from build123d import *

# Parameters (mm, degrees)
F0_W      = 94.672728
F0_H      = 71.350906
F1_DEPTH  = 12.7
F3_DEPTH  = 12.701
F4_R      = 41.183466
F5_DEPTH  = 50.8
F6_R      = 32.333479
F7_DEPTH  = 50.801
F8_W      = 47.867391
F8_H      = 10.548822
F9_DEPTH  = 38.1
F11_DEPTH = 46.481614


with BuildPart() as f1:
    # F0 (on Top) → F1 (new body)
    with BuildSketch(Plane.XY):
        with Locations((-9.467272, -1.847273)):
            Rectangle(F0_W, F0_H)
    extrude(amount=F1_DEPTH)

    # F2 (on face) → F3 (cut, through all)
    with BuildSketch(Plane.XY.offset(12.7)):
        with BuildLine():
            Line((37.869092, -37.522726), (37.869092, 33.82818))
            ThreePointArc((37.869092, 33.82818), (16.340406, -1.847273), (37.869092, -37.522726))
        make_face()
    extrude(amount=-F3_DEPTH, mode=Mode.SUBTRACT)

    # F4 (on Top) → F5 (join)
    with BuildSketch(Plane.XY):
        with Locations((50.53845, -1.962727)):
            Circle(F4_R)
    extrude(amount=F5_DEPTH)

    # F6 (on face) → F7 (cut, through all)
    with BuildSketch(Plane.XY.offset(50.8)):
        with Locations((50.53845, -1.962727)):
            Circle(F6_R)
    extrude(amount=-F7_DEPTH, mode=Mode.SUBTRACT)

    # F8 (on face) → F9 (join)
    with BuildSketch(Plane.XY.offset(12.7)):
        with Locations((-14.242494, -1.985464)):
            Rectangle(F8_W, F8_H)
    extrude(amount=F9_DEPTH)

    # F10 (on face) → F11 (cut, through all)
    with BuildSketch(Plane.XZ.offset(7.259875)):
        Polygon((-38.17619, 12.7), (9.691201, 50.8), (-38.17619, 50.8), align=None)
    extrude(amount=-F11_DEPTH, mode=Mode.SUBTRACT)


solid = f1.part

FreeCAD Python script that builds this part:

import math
import FreeCAD as App
import Part
import Sketcher
from FreeCAD import Vector
Q = App.Units.Quantity

doc = App.newDocument("Part")
body = doc.addObject("PartDesign::Body", "Body")

sketch1 = doc.addObject("Sketcher::SketchObject", "Sketch")
body.addObject(sketch1)
sketch1.AttachmentSupport = (doc.XY_Plane, [""])
sketch1.MapMode = "FlatFace"
sketch1.addGeometry([
    Part.LineSegment(Vector(-57, 34, 0), Vector(-57, -38, 0)),
    Part.LineSegment(Vector(-57, -38, 0), Vector(38, -38, 0)),
    Part.LineSegment(Vector(38, -38, 0), Vector(38, 34, 0)),
    Part.LineSegment(Vector(38, 34, 0), Vector(-57, 34, 0)),
], False)
sketch1.addConstraint([
    Sketcher.Constraint("Coincident", 0, 2, 1, 1),
    Sketcher.Constraint("Coincident", 1, 2, 2, 1),
    Sketcher.Constraint("Coincident", 2, 2, 3, 1),
    Sketcher.Constraint("Coincident", 3, 2, 0, 1),
    Sketcher.Constraint("Vertical", 0),
    Sketcher.Constraint("Horizontal", 1),
    Sketcher.Constraint("Vertical", 2),
    Sketcher.Constraint("Horizontal", 3),
    Sketcher.Constraint("DistanceX", 1, 1, 1, 2, 94.672728),
    Sketcher.Constraint("DistanceY", 0, 2, 0, 1, 71.350906),
    Sketcher.Constraint("DistanceY", -1, 1, 2, 2, 33.82818),
    Sketcher.Constraint("DistanceX", 0, 2, -1, 1, 56.803636),
])
pad1 = doc.addObject("PartDesign::Pad", "Pad")
body.addObject(pad1)
pad1.Profile = sketch1
pad1.Length = Q("0.5 in")

sketch2 = doc.addObject("Sketcher::SketchObject", "Sketch001")
body.addObject(sketch2)
sketch2.AttachmentSupport = (doc.XY_Plane, [""])
sketch2.MapMode = "FlatFace"
sketch2.AttachmentOffset = App.Placement(Vector(0, 0, 0.5 * 25.4), App.Rotation())
sketch2.addGeometry([
    Part.LineSegment(Vector(38, -38, 0), Vector(38, 34, 0)),
    Part.ArcOfCircle(Part.Circle(Vector(57, -2, 0), Vector(0, 0, 1), 40), math.radians(118), math.radians(242)),
], False)
sketch2.addConstraint([
    Sketcher.Constraint("Coincident", 0, 1, 1, 2),
    Sketcher.Constraint("Coincident", 1, 1, 0, 2),
    Sketcher.Constraint("Vertical", 0),
    Sketcher.Constraint("Radius", 1, 40.323461),
    Sketcher.Constraint("DistanceY", 0, 1, 0, 2, 71.350906),
    Sketcher.Constraint("DistanceY", -1, 1, 1, 1, 33.82818),
    Sketcher.Constraint("DistanceX", -1, 1, 1, 3, 56.663867),
])
pocket1 = doc.addObject("PartDesign::Pocket", "Pocket")
body.addObject(pocket1)
pocket1.Profile = sketch2
pocket1.Type = "ThroughAll"

sketch3 = doc.addObject("Sketcher::SketchObject", "Sketch002")
body.addObject(sketch3)
sketch3.AttachmentSupport = (doc.XY_Plane, [""])
sketch3.MapMode = "FlatFace"
sketch3.addGeometry(Part.Circle(Vector(51, -2, 0), Vector(0, 0, 1), 41), False)
sketch3.addConstraint([
    Sketcher.Constraint("Diameter", 0, 82.366932),
    Sketcher.Constraint("DistanceX", -1, 1, 0, 3, 50.53845),
    Sketcher.Constraint("DistanceY", 0, 3, -1, 1, 1.962727),
])
pad2 = doc.addObject("PartDesign::Pad", "Pad001")
body.addObject(pad2)
pad2.Profile = sketch3
pad2.Length = Q("2 in")

sketch4 = doc.addObject("Sketcher::SketchObject", "Sketch003")
body.addObject(sketch4)
sketch4.AttachmentSupport = (doc.XY_Plane, [""])
sketch4.MapMode = "FlatFace"
sketch4.AttachmentOffset = App.Placement(Vector(0, 0, 2 * 25.4), App.Rotation())
sketch4.addGeometry(Part.Circle(Vector(51, -2, 0), Vector(0, 0, 1), 32), False)
sketch4.addConstraint([
    Sketcher.Constraint("Diameter", 0, 64.666958),
    Sketcher.Constraint("DistanceX", -1, 1, 0, 3, 50.53845),
    Sketcher.Constraint("DistanceY", 0, 3, -1, 1, 1.962727),
])
pocket2 = doc.addObject("PartDesign::Pocket", "Pocket001")
body.addObject(pocket2)
pocket2.Profile = sketch4
pocket2.Type = "ThroughAll"

sketch5 = doc.addObject("Sketcher::SketchObject", "Sketch004")
body.addObject(sketch5)
sketch5.AttachmentSupport = (doc.XY_Plane, [""])
sketch5.MapMode = "FlatFace"
sketch5.AttachmentOffset = App.Placement(Vector(0, 0, 0.5 * 25.4), App.Rotation())
sketch5.addGeometry([
    Part.LineSegment(Vector(-38, 3, 0), Vector(-38, -7, 0)),
    Part.LineSegment(Vector(-38, -7, 0), Vector(10, -7, 0)),
    Part.LineSegment(Vector(10, -7, 0), Vector(10, 3, 0)),
    Part.LineSegment(Vector(10, 3, 0), Vector(-38, 3, 0)),
], False)
sketch5.addConstraint([
    Sketcher.Constraint("Coincident", 0, 2, 1, 1),
    Sketcher.Constraint("Coincident", 1, 2, 2, 1),
    Sketcher.Constraint("Coincident", 2, 2, 3, 1),
    Sketcher.Constraint("Coincident", 3, 2, 0, 1),
    Sketcher.Constraint("Vertical", 0),
    Sketcher.Constraint("Horizontal", 1),
    Sketcher.Constraint("Vertical", 2),
    Sketcher.Constraint("Horizontal", 3),
    Sketcher.Constraint("DistanceX", 1, 1, 1, 2, 47.867391),
    Sketcher.Constraint("DistanceX", -1, 1, 1, 2, 9.691202),
    Sketcher.Constraint("DistanceY", 0, 2, 0, 1, 10.548822),
    Sketcher.Constraint("DistanceY", 0, 2, -1, 1, 7.259875),
])
pad3 = doc.addObject("PartDesign::Pad", "Pad002")
body.addObject(pad3)
pad3.Profile = sketch5
pad3.Length = Q("1.5 in")

sketch6 = doc.addObject("Sketcher::SketchObject", "Sketch005")
body.addObject(sketch6)
sketch6.AttachmentSupport = (doc.XZ_Plane, [""])
sketch6.MapMode = "FlatFace"
sketch6.AttachmentOffset = App.Placement(Vector(0, 0, 7.259875), App.Rotation())
sketch6.addGeometry([
    Part.LineSegment(Vector(-38, 13, 0), Vector(10, 51, 0)),
    Part.LineSegment(Vector(10, 51, 0), Vector(-38, 51, 0)),
    Part.LineSegment(Vector(-38, 51, 0), Vector(-38, 13, 0)),
], False)
sketch6.addConstraint([
    Sketcher.Constraint("Coincident", 0, 2, 1, 1),
    Sketcher.Constraint("Coincident", 1, 2, 2, 1),
    Sketcher.Constraint("Coincident", 2, 2, 0, 1),
    Sketcher.Constraint("Horizontal", 1),
    Sketcher.Constraint("Vertical", 2),
    Sketcher.Constraint("DistanceY", 2, 2, 2, 1, Q("1.5 in")),
    Sketcher.Constraint("DistanceY", -1, 1, 0, 2, Q("2 in")),
    Sketcher.Constraint("DistanceX", 1, 2, 1, 1, 47.867391),
    Sketcher.Constraint("DistanceX", -1, 1, 0, 2, 9.691201),
])
pocket3 = doc.addObject("PartDesign::Pocket", "Pocket002")
body.addObject(pocket3)
pocket3.Profile = sketch6
pocket3.Type = "ThroughAll"

doc.recompute()
